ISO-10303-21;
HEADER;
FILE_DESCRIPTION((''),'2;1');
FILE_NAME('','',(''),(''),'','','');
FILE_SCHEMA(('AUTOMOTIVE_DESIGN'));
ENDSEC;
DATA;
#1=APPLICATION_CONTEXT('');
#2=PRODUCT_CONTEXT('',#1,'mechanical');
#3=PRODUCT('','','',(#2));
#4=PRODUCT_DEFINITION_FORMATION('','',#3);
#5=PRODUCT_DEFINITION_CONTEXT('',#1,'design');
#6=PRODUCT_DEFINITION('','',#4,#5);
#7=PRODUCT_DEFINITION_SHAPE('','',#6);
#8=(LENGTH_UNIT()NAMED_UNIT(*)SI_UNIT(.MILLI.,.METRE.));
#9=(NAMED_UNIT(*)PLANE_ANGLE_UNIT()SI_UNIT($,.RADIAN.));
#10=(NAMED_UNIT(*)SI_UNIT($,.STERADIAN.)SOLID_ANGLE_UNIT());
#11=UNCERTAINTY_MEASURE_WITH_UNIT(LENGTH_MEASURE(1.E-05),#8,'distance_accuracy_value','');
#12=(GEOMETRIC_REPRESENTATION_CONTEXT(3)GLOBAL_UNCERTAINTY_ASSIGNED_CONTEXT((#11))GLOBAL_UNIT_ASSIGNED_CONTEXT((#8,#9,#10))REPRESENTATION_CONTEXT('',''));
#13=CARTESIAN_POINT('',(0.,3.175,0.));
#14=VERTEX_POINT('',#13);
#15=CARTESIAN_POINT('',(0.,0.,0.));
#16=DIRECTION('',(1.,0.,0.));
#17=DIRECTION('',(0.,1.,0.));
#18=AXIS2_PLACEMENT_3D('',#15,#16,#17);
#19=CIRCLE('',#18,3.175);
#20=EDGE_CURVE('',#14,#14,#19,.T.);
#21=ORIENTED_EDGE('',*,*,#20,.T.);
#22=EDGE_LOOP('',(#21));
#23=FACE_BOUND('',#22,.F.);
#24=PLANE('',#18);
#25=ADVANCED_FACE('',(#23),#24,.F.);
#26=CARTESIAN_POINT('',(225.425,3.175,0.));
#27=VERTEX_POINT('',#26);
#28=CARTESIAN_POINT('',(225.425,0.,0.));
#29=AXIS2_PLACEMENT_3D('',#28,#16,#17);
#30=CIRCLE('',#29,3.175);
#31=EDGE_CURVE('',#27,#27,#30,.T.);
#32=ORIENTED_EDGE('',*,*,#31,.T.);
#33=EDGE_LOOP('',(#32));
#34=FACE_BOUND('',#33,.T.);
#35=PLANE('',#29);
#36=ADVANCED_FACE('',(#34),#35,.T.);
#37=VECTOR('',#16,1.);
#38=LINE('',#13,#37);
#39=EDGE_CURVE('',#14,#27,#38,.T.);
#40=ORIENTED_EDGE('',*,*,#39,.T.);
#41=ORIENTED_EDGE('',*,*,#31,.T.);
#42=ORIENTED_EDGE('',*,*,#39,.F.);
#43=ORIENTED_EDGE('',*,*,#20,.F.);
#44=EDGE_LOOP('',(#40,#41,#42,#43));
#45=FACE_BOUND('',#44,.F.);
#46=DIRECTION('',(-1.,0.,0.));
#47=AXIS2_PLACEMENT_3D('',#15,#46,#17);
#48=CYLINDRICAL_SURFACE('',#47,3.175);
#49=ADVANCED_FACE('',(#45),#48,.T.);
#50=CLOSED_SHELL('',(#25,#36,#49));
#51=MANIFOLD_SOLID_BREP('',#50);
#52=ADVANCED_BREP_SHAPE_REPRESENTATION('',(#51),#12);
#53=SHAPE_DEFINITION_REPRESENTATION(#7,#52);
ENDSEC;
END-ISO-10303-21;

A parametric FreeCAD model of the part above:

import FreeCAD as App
import Part
import Sketcher
from FreeCAD import Vector
Q = App.Units.Quantity

doc = App.newDocument("Part")
body = doc.addObject("PartDesign::Body", "Body")

# Sketch on YZ plane
sketch1 = doc.addObject("Sketcher::SketchObject", "Sketch")
body.addObject(sketch1)
sketch1.AttachmentSupport = (doc.YZ_Plane, [""])
sketch1.MapMode = "FlatFace"
sketch1.addGeometry(Part.Circle(Vector(0, 0, 0), Vector(0, 0, 1), 3.2), False)
sketch1.addConstraint(Sketcher.Constraint("Coincident", 0, 3, -1, 1))
sketch1.addConstraint(Sketcher.Constraint("Diameter", 0, Q("0.25 in")))
pad1 = doc.addObject("PartDesign::Pad", "Pad")
body.addObject(pad1)
pad1.Profile = sketch1
pad1.Length = Q("8.875 in")

doc.recompute()
